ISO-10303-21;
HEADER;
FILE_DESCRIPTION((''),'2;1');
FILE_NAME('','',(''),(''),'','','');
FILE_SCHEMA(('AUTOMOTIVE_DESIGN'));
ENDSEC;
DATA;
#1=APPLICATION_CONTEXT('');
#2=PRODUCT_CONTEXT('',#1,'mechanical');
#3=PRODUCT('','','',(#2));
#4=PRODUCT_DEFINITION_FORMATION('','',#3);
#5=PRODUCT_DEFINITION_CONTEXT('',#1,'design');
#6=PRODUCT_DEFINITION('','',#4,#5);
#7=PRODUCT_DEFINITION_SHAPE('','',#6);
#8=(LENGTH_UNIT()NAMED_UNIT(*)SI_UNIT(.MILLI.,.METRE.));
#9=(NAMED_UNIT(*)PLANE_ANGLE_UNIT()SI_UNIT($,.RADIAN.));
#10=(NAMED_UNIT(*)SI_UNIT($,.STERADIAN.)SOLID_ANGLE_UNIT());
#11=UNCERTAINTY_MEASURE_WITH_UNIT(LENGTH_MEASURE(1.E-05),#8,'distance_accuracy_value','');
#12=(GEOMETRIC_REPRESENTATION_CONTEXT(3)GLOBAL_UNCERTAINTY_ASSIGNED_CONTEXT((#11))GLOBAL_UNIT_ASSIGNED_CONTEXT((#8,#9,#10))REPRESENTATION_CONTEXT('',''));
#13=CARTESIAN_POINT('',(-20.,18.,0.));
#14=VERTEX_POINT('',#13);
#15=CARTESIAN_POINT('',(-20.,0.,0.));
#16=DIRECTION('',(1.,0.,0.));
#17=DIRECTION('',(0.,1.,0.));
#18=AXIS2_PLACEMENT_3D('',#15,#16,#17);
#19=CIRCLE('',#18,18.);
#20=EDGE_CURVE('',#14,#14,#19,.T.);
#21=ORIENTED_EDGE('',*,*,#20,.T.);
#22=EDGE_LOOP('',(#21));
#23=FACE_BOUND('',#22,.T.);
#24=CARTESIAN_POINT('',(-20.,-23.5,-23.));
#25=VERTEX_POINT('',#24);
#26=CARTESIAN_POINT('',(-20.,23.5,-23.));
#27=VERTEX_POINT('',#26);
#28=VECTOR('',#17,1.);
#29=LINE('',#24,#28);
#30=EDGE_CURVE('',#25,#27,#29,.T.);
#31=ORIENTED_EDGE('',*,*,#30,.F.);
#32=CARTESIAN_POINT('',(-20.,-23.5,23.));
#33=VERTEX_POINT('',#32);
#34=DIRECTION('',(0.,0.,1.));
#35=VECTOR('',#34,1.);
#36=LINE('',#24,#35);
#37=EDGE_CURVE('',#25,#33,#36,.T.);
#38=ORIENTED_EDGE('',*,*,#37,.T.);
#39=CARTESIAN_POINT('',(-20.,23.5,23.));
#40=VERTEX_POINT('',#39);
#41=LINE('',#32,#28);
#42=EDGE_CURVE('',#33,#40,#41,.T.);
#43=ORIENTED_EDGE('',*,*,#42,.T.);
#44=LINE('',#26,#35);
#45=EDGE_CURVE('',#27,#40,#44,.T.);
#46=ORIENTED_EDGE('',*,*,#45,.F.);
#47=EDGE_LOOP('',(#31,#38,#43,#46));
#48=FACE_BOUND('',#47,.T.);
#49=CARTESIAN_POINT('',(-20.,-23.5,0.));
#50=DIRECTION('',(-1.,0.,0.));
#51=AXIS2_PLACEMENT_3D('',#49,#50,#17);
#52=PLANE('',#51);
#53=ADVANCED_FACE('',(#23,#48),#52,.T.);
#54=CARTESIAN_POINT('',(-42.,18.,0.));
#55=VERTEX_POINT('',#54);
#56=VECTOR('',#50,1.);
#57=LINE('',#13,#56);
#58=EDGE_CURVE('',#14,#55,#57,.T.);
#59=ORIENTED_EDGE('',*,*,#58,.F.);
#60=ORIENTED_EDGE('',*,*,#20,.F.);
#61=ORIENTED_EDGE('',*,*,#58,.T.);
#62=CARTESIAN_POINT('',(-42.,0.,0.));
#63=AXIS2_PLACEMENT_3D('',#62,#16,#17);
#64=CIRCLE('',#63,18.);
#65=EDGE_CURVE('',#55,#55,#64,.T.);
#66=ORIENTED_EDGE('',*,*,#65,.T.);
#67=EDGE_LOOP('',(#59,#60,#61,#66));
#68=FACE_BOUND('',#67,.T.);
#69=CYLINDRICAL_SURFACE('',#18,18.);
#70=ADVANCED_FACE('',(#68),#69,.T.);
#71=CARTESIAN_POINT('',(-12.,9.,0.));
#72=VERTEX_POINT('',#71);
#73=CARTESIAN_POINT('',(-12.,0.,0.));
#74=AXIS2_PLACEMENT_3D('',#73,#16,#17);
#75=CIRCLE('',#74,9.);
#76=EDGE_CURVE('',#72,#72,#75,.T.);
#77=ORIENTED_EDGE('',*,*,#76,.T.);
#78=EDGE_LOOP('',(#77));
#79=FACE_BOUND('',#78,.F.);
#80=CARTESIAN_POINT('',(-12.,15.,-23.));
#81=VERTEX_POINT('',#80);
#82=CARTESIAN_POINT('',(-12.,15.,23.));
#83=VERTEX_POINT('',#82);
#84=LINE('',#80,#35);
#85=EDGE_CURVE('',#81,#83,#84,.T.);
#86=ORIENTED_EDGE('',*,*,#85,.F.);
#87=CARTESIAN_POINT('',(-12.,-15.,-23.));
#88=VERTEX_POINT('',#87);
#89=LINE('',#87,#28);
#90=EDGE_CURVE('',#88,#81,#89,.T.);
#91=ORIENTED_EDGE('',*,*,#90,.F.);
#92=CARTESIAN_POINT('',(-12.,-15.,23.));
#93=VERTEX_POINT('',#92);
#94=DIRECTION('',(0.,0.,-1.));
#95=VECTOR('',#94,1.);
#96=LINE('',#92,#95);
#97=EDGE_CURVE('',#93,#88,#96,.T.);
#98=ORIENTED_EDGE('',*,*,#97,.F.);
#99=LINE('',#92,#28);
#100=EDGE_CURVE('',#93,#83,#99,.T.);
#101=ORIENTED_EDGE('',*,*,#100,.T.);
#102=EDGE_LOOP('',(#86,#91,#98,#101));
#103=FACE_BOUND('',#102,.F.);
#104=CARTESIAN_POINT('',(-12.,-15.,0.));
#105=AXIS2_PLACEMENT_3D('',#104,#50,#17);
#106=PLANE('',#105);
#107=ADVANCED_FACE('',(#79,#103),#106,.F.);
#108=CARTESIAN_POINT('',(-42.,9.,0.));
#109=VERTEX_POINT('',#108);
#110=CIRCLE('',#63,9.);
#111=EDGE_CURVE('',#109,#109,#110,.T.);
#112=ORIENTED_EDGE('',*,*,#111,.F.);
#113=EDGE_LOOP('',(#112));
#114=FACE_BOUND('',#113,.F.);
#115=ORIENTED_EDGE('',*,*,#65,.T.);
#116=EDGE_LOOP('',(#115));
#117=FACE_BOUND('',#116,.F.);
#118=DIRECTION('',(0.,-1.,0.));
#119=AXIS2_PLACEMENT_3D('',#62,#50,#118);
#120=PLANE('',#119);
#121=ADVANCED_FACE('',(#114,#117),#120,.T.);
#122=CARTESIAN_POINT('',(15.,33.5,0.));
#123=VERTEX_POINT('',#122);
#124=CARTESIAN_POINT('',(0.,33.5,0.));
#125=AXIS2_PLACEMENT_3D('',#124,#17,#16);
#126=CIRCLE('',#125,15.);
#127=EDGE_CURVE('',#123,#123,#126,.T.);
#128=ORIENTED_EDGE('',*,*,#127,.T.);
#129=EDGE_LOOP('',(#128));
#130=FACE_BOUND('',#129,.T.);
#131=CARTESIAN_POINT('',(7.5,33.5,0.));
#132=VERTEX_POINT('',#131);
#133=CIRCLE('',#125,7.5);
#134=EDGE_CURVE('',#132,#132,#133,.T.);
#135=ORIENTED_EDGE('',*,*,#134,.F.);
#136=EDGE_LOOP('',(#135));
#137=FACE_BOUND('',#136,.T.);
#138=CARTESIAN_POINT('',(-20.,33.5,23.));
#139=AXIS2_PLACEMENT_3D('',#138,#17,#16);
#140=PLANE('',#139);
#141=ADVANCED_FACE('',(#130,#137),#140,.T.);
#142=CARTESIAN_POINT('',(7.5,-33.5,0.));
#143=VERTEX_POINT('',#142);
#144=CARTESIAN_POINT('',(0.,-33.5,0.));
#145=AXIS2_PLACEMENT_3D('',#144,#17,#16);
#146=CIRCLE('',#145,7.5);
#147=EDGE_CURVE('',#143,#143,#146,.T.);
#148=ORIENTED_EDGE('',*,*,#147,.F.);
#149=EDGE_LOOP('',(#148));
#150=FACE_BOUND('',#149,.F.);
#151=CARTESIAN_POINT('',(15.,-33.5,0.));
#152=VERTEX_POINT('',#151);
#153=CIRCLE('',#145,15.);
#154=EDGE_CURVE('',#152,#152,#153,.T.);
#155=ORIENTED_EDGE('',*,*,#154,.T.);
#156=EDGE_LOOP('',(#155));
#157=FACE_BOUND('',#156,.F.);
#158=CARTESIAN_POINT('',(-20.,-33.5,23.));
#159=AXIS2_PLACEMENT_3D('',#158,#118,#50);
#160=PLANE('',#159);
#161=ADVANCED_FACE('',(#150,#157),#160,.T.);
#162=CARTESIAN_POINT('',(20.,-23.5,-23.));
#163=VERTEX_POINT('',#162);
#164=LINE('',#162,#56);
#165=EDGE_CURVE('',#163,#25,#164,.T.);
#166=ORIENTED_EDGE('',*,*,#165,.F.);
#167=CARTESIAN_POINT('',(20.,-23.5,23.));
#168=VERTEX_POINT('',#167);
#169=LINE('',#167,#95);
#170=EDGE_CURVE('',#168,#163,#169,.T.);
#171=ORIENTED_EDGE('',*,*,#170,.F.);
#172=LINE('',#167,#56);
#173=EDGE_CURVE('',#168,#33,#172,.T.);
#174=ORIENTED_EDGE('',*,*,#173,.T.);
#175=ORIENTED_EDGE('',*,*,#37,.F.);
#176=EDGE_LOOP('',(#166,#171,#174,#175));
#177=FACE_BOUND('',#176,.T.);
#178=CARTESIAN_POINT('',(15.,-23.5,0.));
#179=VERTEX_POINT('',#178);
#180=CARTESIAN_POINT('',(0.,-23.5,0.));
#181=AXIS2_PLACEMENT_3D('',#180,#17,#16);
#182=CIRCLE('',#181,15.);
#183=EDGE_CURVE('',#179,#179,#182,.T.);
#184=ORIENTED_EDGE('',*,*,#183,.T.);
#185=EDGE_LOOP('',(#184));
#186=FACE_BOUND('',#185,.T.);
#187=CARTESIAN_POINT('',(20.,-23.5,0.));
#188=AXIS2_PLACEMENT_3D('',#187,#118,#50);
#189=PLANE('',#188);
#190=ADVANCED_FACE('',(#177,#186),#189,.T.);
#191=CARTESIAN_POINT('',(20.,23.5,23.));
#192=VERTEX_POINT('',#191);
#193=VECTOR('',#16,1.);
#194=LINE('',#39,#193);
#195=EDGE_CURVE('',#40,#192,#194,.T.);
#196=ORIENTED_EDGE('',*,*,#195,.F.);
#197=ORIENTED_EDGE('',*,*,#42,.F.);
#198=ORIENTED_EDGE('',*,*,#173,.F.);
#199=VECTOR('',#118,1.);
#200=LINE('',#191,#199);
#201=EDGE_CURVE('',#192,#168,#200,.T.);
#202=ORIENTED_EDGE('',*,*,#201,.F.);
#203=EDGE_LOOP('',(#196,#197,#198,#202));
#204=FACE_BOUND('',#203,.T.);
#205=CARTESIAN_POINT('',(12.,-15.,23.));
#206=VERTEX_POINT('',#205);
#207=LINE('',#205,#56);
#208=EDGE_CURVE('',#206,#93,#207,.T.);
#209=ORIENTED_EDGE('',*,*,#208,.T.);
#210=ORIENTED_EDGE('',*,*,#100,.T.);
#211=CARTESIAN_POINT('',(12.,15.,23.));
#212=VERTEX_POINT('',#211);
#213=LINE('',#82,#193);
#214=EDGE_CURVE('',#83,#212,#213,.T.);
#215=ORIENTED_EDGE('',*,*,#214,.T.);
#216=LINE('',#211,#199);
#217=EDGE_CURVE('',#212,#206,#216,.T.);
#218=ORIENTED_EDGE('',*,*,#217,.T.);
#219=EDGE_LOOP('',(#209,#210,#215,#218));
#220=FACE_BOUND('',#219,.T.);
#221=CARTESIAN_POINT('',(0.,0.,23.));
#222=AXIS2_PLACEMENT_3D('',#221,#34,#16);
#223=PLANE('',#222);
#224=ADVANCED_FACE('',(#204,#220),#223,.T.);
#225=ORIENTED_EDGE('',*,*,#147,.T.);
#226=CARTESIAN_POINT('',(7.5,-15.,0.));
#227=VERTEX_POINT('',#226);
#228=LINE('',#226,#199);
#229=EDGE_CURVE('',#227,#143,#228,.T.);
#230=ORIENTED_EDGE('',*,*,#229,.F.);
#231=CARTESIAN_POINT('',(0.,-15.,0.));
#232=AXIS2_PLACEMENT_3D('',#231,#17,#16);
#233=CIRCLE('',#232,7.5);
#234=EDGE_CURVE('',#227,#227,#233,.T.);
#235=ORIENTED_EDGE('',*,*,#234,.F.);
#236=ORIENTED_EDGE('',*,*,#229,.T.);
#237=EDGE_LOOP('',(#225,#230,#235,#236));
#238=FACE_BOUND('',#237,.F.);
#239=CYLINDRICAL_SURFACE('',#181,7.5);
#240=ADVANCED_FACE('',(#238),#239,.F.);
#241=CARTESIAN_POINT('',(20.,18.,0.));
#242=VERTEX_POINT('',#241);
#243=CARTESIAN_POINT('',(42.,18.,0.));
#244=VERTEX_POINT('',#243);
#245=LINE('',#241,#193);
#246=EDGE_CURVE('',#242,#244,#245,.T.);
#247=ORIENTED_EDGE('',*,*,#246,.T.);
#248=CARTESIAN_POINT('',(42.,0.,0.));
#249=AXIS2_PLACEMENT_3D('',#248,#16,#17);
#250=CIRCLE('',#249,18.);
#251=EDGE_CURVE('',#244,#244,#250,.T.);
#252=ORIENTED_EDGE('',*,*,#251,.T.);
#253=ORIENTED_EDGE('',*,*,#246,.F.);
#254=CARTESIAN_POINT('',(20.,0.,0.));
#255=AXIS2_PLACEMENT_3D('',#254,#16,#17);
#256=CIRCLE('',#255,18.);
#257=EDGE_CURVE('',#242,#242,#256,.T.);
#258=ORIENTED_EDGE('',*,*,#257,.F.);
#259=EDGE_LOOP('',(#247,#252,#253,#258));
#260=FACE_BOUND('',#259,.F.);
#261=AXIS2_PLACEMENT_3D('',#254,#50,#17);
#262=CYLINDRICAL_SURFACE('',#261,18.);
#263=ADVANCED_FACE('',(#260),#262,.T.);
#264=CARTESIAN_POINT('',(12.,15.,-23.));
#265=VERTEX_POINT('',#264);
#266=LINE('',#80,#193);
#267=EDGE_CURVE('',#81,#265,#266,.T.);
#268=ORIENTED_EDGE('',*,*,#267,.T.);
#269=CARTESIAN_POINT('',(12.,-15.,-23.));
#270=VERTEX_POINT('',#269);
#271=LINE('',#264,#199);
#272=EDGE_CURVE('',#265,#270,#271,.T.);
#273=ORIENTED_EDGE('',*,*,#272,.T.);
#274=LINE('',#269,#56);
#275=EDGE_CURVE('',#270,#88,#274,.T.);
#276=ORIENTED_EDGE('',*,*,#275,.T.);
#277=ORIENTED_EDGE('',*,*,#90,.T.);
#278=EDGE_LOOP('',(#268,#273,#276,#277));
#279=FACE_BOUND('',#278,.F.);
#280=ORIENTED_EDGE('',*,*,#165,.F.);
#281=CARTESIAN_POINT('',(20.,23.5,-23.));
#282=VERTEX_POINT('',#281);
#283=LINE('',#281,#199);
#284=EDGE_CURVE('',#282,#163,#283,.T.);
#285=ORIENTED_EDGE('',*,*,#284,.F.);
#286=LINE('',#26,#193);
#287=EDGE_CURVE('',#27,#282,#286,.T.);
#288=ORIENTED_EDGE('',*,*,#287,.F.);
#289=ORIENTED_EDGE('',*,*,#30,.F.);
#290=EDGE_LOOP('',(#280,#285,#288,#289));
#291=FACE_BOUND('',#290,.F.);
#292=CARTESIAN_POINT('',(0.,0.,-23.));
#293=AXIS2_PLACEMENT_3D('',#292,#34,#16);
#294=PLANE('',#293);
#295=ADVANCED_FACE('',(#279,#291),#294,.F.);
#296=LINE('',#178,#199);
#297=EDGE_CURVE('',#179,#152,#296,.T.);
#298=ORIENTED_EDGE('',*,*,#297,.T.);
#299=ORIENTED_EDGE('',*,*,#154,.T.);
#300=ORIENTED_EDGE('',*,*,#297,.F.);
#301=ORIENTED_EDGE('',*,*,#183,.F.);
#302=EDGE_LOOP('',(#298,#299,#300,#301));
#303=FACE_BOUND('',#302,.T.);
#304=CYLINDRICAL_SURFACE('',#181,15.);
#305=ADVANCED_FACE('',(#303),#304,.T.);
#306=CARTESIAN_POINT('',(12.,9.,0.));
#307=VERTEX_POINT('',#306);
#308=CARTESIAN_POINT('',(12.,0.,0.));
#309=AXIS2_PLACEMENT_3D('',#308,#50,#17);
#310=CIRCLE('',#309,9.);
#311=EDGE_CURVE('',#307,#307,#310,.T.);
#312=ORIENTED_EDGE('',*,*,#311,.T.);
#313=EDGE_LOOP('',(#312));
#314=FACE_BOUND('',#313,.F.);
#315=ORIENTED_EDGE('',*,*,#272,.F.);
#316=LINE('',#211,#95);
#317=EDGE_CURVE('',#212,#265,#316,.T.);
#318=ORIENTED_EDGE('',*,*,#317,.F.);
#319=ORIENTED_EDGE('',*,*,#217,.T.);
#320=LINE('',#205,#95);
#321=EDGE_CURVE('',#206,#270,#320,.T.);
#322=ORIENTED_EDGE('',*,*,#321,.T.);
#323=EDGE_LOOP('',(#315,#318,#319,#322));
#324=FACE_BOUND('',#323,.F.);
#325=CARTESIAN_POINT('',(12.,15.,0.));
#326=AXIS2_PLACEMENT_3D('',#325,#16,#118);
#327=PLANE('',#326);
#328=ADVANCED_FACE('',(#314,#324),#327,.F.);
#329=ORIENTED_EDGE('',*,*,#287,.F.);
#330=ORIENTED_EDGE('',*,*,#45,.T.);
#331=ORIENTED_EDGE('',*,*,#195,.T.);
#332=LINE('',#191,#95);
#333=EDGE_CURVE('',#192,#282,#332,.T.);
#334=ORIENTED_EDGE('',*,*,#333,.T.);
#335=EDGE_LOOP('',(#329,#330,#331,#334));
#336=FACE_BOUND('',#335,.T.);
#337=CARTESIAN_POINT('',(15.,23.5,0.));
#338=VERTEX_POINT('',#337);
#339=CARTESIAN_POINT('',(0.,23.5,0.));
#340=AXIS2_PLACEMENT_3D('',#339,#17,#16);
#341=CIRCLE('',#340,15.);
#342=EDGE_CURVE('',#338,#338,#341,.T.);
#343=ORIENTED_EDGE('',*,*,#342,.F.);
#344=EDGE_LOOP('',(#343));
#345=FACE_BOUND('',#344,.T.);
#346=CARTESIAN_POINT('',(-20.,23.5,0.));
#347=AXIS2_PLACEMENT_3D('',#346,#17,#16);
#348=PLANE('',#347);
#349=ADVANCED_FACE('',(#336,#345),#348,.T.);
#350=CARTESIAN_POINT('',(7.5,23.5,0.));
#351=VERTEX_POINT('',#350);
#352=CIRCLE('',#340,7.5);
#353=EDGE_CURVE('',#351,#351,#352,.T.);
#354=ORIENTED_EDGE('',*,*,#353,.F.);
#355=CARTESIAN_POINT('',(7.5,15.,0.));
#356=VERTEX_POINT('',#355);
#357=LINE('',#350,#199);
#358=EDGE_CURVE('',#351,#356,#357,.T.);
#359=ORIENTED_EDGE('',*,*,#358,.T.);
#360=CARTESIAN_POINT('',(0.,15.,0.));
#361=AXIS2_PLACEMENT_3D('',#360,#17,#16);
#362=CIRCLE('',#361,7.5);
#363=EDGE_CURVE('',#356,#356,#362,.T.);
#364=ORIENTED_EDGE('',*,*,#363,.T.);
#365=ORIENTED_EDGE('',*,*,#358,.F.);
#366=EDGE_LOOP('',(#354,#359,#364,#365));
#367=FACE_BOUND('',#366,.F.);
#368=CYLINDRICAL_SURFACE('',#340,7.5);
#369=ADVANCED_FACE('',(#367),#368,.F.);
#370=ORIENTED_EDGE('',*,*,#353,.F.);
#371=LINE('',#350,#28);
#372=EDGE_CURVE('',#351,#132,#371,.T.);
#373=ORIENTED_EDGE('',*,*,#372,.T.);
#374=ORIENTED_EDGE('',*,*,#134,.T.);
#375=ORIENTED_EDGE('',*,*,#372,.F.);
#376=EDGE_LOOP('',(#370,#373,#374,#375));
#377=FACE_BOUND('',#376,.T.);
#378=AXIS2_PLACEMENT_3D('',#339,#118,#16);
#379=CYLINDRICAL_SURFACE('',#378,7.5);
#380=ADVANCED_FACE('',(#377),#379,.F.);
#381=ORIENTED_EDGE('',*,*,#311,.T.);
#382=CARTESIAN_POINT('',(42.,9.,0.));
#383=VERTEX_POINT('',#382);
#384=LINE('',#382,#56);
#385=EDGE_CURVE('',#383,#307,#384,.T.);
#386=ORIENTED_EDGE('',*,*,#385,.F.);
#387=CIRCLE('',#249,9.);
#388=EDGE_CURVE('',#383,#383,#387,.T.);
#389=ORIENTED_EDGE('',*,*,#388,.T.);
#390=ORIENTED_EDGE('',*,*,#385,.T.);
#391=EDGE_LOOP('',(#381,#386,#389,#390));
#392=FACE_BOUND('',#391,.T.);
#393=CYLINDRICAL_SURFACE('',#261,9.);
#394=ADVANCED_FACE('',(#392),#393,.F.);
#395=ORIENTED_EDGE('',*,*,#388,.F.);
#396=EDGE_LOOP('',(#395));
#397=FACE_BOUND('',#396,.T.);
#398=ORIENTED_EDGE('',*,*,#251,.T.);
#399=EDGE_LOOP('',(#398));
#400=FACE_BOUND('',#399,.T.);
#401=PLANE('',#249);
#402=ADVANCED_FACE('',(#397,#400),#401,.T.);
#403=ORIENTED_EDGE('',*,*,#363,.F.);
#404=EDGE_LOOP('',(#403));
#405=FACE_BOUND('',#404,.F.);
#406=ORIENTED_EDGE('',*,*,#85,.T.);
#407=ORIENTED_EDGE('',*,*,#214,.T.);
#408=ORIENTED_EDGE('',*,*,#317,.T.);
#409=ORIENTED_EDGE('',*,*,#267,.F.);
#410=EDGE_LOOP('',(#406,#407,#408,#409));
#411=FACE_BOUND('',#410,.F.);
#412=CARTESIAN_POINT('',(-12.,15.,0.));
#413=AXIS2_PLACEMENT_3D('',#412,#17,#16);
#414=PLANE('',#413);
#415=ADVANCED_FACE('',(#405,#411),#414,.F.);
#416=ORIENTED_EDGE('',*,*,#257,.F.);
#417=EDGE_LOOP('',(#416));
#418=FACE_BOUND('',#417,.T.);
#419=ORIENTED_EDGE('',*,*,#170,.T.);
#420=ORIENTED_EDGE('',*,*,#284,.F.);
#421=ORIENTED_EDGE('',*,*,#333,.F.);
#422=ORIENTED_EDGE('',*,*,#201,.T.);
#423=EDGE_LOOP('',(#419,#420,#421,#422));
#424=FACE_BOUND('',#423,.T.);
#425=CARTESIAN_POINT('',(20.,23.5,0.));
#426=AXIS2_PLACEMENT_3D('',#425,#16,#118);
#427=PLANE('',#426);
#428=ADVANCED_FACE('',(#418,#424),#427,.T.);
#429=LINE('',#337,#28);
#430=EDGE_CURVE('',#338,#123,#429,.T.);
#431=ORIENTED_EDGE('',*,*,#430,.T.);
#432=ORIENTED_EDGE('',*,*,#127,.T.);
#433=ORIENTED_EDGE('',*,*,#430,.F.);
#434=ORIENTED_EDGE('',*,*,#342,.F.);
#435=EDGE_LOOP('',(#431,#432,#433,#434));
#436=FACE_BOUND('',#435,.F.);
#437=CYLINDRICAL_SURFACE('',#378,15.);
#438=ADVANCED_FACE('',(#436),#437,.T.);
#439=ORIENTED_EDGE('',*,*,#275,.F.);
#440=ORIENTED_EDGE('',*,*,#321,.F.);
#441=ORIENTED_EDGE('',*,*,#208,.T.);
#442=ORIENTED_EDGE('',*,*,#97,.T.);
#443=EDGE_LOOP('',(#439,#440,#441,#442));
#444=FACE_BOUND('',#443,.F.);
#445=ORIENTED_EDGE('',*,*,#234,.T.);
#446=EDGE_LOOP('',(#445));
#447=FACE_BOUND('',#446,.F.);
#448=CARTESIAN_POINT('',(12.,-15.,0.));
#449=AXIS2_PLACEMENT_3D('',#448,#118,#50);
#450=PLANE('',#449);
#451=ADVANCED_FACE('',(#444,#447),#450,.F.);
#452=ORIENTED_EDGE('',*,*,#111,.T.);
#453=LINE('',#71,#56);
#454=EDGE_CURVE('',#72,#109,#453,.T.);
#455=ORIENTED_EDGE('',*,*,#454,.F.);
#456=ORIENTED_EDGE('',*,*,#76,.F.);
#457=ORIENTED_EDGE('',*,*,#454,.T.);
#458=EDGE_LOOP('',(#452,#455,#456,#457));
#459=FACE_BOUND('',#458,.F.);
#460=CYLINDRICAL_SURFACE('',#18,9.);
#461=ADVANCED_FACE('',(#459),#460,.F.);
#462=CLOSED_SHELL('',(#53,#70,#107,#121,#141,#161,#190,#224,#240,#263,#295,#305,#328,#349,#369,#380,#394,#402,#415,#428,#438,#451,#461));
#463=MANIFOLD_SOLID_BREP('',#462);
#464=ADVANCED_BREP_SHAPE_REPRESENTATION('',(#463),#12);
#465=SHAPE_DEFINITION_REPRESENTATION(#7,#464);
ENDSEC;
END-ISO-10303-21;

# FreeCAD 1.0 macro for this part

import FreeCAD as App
import Part
import Sketcher

V = App.Vector

doc = App.newDocument("Part")
body = doc.addObject("PartDesign::Body", "Body")

# Sketch on XY plane
sketch1 = body.newObject("Sketcher::SketchObject", "Sketch")
sketch1.AttachmentSupport = (doc.getObject("XY_Plane"), [""])
sketch1.MapMode = "FlatFace"
sketch1.addGeometry([
    Part.LineSegment(V(20, 24, 0), V(-20, 24, 0)),  # 0
    Part.LineSegment(V(-20, 24, 0), V(-20, -24, 0)),  # 1
    Part.LineSegment(V(-20, -24, 0), V(20, -24, 0)),  # 2
    Part.LineSegment(V(20, -24, 0), V(20, 24, 0)),  # 3
    Part.LineSegment(V(-12, -15, 0), V(-12, 15, 0)),  # 4
    Part.LineSegment(V(-12, 15, 0), V(12, 15, 0)),  # 5
    Part.LineSegment(V(12, 15, 0), V(12, -15, 0)),  # 6
    Part.LineSegment(V(12, -15, 0), V(-12, -15, 0)),  # 7
], False)
sketch1.addConstraint([
    Sketcher.Constraint("Coincident", 0, 2, 1, 1),
    Sketcher.Constraint("Coincident", 1, 2, 2, 1),
    Sketcher.Constraint("Coincident", 2, 2, 3, 1),
    Sketcher.Constraint("Coincident", 3, 2, 0, 1),
    Sketcher.Constraint("Coincident", 4, 2, 5, 1),
    Sketcher.Constraint("Coincident", 5, 2, 6, 1),
    Sketcher.Constraint("Coincident", 6, 2, 7, 1),
    Sketcher.Constraint("Coincident", 7, 2, 4, 1),
    Sketcher.Constraint("Horizontal", 0),
    Sketcher.Constraint("Vertical", 1),
    Sketcher.Constraint("Horizontal", 2),
    Sketcher.Constraint("Vertical", 3),
    Sketcher.Constraint("Vertical", 4),
    Sketcher.Constraint("Horizontal", 5),
    Sketcher.Constraint("Vertical", 6),
    Sketcher.Constraint("Horizontal", 7),
    Sketcher.Constraint("Symmetric", 0, 2, 2, 2, -1, 1),
    Sketcher.Constraint("Symmetric", 4, 2, 6, 2, -1, 1),
    Sketcher.Constraint("DistanceX", 0, 2, 0, 1, 40.0),
    Sketcher.Constraint("DistanceX", 5, 1, 5, 2, 24.0),
    Sketcher.Constraint("DistanceY", 1, 2, 1, 1, 47.0),
    Sketcher.Constraint("DistanceY", 4, 1, 4, 2, 30.0),
])
pad1 = body.newObject("PartDesign::Pad", "Pad")
pad1.Profile = sketch1
pad1.Length = 46
pad1.Midplane = True

# Sketch on YZ plane
sketch2 = body.newObject("Sketcher::SketchObject", "Sketch001")
sketch2.AttachmentSupport = (doc.getObject("YZ_Plane"), [""])
sketch2.MapMode = "FlatFace"
sketch2.addGeometry(Part.Circle(V(0, 0, 0), V(0, 0, 1), 9), False)
sketch2.addConstraint([
    Sketcher.Constraint("Coincident", 0, 3, -1, 1),
    Sketcher.Constraint("Diameter", 0, 18.0),
])
pocket1 = body.newObject("PartDesign::Pocket", "Pocket")
pocket1.Profile = sketch2
pocket1.Type = "ThroughAll"
pocket1.Midplane = True

# Sketch on YZ plane
sketch3 = body.newObject("Sketcher::SketchObject", "Sketch002")
sketch3.AttachmentSupport = (doc.getObject("YZ_Plane"), [""])
sketch3.MapMode = "FlatFace"
sketch3.AttachmentOffset = App.Placement(V(0, 0, 20), App.Rotation())
sketch3.addGeometry([
    Part.Circle(V(0, 0, 0), V(0, 0, 1), 18),
    Part.Circle(V(0, 0, 0), V(0, 0, 1), 9),
], False)
sketch3.addConstraint([
    Sketcher.Constraint("Coincident", 0, 3, -1, 1),
    Sketcher.Constraint("Coincident", 1, 3, -1, 1),
    Sketcher.Constraint("Diameter", 0, 36.0),
    Sketcher.Constraint("Diameter", 1, 18.0),
])
pad2 = body.newObject("PartDesign::Pad", "Pad001")
pad2.Profile = sketch3
pad2.Length = 22
doc.recompute()

mirrored = body.newObject("PartDesign::Mirrored", "Mirrored")
mirrored.Originals = [pad2]
mirrored.MirrorPlane = (doc.getObject("YZ_Plane"), [""])
body.Tip = mirrored

# Sketch on XZ plane
sketch4 = body.newObject("Sketcher::SketchObject", "Sketch003")
sketch4.AttachmentSupport = (doc.getObject("XZ_Plane"), [""])
sketch4.MapMode = "FlatFace"
sketch4.AttachmentOffset = App.Placement(V(0, 0, -23.5), App.Rotation())
sketch4.addGeometry(Part.Circle(V(0, 0, 0), V(0, 0, 1), 8), False)
sketch4.addConstraint([
    Sketcher.Constraint("Coincident", 0, 3, -1, 1),
    Sketcher.Constraint("Diameter", 0, 15.0),
])
pocket2 = body.newObject("PartDesign::Pocket", "Pocket001")
pocket2.Profile = sketch4
pocket2.Type = "ThroughAll"
pocket2.Reversed = True

# Sketch on XZ plane
sketch5 = body.newObject("Sketcher::SketchObject", "Sketch004")
sketch5.AttachmentSupport = (doc.getObject("XZ_Plane"), [""])
sketch5.MapMode = "FlatFace"
sketch5.AttachmentOffset = App.Placement(V(0, 0, -23.5), App.Rotation())
sketch5.addGeometry([
    Part.Circle(V(0, 0, 0), V(0, 0, 1), 15),
    Part.Circle(V(0, 0, 0), V(0, 0, 1), 8),
], False)
sketch5.addConstraint([
    Sketcher.Constraint("Coincident", 0, 3, -1, 1),
    Sketcher.Constraint("Coincident", 1, 3, -1, 1),
    Sketcher.Constraint("Diameter", 0, 30.0),
    Sketcher.Constraint("Diameter", 1, 15.0),
])
pad3 = body.newObject("PartDesign::Pad", "Pad002")
pad3.Profile = sketch5
pad3.Length = 10
pad3.Reversed = True
doc.recompute()

mirrored2 = body.newObject("PartDesign::Mirrored", "Mirrored001")
mirrored2.Originals = [pad3]
mirrored2.MirrorPlane = (doc.getObject("XZ_Plane"), [""])
body.Tip = mirrored2

doc.recompute()
